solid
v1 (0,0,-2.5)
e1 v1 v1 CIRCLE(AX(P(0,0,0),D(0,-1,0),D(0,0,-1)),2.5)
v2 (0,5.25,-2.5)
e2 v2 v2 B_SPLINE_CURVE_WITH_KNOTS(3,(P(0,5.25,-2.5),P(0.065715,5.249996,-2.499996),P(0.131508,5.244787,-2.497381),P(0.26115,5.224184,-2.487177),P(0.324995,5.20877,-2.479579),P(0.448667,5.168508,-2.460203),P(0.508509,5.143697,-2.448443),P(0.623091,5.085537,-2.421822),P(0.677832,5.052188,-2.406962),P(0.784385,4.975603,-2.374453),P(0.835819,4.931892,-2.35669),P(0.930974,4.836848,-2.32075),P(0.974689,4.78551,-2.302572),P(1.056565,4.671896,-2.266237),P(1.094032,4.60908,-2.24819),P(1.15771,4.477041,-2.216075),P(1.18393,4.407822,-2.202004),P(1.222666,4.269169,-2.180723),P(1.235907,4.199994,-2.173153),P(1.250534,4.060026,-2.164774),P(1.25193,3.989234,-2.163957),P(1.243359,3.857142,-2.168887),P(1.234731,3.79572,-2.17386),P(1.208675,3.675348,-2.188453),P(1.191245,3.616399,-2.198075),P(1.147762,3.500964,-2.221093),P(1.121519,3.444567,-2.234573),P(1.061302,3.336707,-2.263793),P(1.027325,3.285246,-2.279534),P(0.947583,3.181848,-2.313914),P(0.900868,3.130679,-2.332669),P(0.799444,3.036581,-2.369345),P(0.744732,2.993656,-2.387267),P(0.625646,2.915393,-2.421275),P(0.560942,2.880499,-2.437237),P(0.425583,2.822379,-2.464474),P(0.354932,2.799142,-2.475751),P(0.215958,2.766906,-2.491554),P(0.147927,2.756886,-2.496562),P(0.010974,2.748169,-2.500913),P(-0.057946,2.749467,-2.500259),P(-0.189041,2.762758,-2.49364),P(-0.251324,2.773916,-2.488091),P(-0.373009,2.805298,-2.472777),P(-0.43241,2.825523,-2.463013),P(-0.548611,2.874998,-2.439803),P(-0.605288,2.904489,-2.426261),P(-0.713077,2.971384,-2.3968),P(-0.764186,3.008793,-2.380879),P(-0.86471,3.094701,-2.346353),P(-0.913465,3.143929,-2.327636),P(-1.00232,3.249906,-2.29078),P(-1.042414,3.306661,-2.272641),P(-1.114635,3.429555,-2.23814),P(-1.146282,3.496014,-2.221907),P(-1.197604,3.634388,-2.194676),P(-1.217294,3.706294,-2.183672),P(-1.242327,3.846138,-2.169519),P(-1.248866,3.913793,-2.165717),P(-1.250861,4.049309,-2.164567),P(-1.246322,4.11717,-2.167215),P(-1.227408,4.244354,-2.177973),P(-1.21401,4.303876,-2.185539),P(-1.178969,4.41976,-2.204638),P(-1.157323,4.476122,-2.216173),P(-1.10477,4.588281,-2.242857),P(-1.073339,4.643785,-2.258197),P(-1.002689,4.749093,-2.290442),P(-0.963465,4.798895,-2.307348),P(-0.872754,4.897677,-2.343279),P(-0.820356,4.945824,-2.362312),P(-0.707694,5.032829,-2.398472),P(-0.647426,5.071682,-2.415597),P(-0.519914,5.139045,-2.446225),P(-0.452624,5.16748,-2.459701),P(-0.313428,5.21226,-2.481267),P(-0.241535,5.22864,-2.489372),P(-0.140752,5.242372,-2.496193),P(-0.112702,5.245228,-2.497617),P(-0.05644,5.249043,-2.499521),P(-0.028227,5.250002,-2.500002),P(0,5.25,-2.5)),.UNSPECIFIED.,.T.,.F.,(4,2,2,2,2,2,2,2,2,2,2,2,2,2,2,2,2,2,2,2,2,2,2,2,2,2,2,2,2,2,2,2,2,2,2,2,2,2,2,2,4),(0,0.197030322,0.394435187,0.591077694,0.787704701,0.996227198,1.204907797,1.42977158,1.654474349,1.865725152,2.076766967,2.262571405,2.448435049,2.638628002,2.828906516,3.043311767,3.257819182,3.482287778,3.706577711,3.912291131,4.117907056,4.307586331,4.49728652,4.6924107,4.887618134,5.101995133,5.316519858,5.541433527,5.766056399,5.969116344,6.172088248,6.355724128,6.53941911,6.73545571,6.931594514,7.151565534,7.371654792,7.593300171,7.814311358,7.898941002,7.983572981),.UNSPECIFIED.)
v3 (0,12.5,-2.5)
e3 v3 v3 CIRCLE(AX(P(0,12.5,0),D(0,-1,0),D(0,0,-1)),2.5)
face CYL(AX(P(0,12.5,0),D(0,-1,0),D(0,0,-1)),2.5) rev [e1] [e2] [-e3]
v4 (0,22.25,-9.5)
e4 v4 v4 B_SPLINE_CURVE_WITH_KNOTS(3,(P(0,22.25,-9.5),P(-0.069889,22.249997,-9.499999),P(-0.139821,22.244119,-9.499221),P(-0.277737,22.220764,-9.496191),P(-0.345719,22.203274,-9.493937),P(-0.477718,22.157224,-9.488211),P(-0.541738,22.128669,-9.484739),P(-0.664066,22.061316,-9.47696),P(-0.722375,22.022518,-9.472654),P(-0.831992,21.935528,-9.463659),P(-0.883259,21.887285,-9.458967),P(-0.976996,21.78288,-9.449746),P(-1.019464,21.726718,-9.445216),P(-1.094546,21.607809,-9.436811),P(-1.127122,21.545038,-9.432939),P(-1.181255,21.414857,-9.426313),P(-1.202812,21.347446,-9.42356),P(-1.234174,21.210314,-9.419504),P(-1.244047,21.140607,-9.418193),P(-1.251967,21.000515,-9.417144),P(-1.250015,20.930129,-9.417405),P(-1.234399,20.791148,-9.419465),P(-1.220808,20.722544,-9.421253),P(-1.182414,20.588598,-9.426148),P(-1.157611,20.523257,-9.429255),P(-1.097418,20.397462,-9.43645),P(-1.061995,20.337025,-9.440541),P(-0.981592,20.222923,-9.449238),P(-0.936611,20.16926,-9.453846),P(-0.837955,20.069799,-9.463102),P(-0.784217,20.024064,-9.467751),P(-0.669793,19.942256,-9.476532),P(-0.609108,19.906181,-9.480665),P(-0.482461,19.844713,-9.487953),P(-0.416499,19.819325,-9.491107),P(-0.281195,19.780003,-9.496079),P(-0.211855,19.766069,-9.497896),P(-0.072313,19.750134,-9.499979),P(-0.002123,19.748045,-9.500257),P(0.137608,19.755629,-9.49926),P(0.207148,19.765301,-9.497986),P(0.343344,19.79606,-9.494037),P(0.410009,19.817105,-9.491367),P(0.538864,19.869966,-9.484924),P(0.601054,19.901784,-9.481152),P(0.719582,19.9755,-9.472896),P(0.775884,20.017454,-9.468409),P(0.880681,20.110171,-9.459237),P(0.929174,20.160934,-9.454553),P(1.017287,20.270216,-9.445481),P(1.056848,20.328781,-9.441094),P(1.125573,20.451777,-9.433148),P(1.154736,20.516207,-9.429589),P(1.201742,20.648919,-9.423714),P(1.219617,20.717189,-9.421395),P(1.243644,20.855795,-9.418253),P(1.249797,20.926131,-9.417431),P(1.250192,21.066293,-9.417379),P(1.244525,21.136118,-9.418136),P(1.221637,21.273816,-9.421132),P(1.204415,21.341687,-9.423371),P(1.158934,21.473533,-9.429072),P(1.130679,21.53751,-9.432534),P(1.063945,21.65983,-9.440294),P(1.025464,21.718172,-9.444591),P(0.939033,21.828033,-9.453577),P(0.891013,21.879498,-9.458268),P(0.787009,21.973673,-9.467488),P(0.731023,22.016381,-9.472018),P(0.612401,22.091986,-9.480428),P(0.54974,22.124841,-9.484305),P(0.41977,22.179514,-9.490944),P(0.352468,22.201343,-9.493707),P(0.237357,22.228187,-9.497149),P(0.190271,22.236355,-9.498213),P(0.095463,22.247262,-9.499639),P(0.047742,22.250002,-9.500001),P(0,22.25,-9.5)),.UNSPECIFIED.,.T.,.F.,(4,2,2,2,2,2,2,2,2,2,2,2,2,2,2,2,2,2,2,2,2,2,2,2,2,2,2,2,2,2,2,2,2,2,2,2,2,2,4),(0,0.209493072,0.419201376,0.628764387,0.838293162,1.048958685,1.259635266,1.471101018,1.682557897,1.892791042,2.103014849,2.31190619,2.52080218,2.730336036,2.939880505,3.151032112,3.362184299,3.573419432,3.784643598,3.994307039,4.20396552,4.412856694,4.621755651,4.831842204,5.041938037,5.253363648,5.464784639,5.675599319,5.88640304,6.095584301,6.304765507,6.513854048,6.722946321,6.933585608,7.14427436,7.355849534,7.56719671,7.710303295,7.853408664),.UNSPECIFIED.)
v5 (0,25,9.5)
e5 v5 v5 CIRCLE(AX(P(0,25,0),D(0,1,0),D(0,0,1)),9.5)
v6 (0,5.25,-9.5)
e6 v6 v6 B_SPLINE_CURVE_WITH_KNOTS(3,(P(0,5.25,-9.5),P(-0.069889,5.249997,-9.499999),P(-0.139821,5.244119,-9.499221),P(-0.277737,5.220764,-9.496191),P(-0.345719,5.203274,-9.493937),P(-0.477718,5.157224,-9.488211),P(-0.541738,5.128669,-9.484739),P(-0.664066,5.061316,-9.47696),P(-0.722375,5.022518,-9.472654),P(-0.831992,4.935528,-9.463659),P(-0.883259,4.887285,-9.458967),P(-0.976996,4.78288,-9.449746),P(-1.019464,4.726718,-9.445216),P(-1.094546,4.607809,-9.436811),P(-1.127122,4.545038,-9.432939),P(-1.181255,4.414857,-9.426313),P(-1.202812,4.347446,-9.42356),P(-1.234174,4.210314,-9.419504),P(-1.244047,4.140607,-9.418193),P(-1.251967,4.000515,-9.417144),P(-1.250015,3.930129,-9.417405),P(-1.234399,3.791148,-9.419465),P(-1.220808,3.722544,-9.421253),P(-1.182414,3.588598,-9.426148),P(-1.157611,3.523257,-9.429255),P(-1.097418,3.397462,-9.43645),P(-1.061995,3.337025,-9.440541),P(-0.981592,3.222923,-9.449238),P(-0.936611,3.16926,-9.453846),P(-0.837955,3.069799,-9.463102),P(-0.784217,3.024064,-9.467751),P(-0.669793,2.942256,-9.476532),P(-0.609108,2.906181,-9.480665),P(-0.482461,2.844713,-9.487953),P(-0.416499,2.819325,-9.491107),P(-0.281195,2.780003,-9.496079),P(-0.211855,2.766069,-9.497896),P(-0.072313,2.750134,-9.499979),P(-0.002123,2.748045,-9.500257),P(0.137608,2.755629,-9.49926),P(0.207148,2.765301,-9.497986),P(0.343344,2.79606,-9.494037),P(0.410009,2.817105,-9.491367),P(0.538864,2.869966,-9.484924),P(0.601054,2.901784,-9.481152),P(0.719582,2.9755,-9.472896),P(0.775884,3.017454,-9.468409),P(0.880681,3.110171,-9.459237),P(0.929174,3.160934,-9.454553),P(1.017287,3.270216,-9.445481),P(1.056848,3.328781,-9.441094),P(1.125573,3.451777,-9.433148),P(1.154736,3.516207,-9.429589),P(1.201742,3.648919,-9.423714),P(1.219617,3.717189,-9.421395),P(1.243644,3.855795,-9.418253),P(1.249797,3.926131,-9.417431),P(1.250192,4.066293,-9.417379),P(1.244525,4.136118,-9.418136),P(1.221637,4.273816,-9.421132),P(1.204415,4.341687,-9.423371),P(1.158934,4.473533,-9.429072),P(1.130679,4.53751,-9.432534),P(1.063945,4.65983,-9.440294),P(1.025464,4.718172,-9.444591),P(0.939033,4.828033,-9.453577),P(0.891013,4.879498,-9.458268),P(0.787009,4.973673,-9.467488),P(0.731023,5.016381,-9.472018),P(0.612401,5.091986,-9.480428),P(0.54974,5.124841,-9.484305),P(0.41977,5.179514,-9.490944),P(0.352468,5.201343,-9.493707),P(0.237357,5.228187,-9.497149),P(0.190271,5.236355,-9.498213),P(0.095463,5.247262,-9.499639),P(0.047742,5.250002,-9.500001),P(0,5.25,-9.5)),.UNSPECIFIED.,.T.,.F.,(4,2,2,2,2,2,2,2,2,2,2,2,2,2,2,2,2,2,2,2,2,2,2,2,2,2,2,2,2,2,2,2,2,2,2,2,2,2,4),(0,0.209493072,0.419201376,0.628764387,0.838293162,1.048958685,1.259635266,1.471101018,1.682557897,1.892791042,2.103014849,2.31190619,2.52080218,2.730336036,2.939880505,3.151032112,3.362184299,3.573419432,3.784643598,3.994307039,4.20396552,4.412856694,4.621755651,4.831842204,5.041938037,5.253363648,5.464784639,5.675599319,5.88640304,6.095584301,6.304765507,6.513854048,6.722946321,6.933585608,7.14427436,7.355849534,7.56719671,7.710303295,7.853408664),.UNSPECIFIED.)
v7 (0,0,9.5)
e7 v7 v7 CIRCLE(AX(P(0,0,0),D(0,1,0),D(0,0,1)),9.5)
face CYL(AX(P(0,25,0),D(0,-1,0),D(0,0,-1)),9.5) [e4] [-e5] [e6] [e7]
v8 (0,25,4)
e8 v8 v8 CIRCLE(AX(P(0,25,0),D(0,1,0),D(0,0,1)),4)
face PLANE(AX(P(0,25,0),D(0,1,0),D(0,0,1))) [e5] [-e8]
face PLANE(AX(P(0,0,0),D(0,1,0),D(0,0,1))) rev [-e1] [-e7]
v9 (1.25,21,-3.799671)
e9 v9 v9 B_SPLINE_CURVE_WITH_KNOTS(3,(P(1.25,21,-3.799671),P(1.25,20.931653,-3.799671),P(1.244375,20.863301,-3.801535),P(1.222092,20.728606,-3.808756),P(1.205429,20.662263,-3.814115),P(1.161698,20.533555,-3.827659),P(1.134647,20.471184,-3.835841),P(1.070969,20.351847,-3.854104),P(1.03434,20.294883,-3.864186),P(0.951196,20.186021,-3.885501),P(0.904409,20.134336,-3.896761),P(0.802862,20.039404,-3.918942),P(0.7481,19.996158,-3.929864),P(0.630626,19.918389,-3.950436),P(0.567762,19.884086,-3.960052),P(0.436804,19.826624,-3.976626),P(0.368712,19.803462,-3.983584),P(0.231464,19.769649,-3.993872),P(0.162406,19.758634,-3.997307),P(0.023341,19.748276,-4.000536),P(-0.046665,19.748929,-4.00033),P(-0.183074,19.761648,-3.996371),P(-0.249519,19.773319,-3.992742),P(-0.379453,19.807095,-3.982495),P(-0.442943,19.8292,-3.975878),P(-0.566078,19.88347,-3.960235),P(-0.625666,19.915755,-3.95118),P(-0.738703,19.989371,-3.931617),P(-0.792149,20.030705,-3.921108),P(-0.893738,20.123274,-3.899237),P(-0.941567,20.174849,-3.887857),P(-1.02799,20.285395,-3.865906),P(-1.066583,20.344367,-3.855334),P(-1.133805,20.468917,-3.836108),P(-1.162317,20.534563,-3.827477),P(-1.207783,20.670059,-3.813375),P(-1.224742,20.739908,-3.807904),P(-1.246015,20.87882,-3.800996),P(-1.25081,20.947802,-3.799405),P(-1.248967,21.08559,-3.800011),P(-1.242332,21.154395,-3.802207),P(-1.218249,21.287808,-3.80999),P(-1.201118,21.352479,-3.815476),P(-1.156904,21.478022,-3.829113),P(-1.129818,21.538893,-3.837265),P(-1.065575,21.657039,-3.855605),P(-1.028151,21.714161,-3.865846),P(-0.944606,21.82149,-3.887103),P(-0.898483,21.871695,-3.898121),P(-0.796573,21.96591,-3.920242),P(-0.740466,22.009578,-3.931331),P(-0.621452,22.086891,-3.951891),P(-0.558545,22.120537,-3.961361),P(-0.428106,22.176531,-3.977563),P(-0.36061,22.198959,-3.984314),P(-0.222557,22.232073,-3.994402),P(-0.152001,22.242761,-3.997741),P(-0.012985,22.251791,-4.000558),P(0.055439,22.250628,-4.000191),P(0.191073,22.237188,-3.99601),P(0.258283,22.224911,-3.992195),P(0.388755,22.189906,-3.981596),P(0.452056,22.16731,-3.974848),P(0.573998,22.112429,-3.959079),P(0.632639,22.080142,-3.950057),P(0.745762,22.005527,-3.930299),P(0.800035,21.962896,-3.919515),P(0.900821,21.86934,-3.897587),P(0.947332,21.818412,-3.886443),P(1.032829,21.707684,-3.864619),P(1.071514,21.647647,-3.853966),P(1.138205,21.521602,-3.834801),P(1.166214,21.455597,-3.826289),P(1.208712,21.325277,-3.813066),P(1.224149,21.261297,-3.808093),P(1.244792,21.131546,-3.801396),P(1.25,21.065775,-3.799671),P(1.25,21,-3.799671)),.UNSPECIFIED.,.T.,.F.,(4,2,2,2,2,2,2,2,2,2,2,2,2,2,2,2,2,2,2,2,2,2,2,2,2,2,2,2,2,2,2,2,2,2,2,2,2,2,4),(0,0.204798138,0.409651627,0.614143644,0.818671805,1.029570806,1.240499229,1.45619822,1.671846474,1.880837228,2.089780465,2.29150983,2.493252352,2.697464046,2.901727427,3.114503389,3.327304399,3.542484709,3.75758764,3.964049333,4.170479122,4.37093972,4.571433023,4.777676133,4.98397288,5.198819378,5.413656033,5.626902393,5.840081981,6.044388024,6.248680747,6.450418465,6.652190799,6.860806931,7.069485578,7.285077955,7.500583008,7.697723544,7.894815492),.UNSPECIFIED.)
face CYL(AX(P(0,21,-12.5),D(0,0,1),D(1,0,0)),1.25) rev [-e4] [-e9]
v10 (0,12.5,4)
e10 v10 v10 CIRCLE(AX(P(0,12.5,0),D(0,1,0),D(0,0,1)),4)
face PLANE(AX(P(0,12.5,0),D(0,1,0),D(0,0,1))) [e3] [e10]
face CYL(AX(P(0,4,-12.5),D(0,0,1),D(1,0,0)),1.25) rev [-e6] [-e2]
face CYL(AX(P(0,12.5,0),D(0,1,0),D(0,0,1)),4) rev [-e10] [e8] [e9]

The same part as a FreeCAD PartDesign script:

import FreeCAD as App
import Part
import Sketcher
Q = App.Units.Quantity

doc = App.newDocument("Part")
body = doc.addObject("PartDesign::Body", "Body")

sketch1 = body.newObject("Sketcher::SketchObject", "Sketch")
sketch1.AttachmentSupport = (doc.getObject("XZ_Plane"), [""])
sketch1.MapMode = "FlatFace"
sketch1.addGeometry(Part.Circle(App.Vector(0, 0, 0), App.Vector(0, 0, 1), 9.5), False)
sketch1.addConstraint([
    Sketcher.Constraint("Coincident", 0, 3, -1, 1),
    Sketcher.Constraint("Diameter", 0, Q("19 mm")),
])
pad1 = body.newObject("PartDesign::Pad", "Pad")
pad1.Profile = sketch1
pad1.Length = 25
pad1.Reversed = True

sketch2 = body.newObject("Sketcher::SketchObject", "Sketch001")
sketch2.AttachmentSupport = (doc.getObject("XZ_Plane"), [""])
sketch2.MapMode = "FlatFace"
sketch2.AttachmentOffset = App.Placement(App.Vector(0, 0, -25), App.Rotation())
sketch2.addGeometry(Part.Circle(App.Vector(0, 0, 0), App.Vector(0, 0, 1), 4), False)
sketch2.addConstraint([
    Sketcher.Constraint("Coincident", 0, 3, -1, 1),
    Sketcher.Constraint("Diameter", 0, Q("8 mm")),
])
pocket1 = body.newObject("PartDesign::Pocket", "Pocket")
pocket1.Profile = sketch2
pocket1.Length = 12.5
pocket1.Reversed = True

sketch3 = body.newObject("Sketcher::SketchObject", "Sketch002")
sketch3.AttachmentSupport = (doc.getObject("XZ_Plane"), [""])
sketch3.MapMode = "FlatFace"
sketch3.addGeometry(Part.Circle(App.Vector(0, 0, 0), App.Vector(0, 0, 1), 2.5), False)
sketch3.addConstraint([
    Sketcher.Constraint("Coincident", 0, 3, -1, 1),
    Sketcher.Constraint("Diameter", 0, Q("5 mm")),
])
pocket2 = body.newObject("PartDesign::Pocket", "Pocket001")
pocket2.Profile = sketch3
pocket2.Length = 12.5

sketch4 = body.newObject("Sketcher::SketchObject", "Sketch003")
sketch4.AttachmentSupport = (doc.getObject("XY_Plane"), [""])
sketch4.MapMode = "FlatFace"
sketch4.addGeometry([
    Part.Circle(App.Vector(0, 4, 0), App.Vector(0, 0, 1), 1.25),
    Part.Circle(App.Vector(0, 21, 0), App.Vector(0, 0, 1), 1.25),
], False)
sketch4.addConstraint([
    Sketcher.Constraint("Equal", 0, 1),
    Sketcher.Constraint("PointOnObject", 0, 3, -2),
    Sketcher.Constraint("PointOnObject", 1, 3, -2),
    Sketcher.Constraint("Diameter", 0, Q("2.5 mm")),
    Sketcher.Constraint("DistanceY", -1, 1, 0, 3, Q("4 mm")),
    Sketcher.Constraint("DistanceY", -1, 1, 1, 3, Q("21 mm")),
])
pocket3 = body.newObject("PartDesign::Pocket", "Pocket002")
pocket3.Profile = sketch4
pocket3.Length = 12.5

doc.recompute()
